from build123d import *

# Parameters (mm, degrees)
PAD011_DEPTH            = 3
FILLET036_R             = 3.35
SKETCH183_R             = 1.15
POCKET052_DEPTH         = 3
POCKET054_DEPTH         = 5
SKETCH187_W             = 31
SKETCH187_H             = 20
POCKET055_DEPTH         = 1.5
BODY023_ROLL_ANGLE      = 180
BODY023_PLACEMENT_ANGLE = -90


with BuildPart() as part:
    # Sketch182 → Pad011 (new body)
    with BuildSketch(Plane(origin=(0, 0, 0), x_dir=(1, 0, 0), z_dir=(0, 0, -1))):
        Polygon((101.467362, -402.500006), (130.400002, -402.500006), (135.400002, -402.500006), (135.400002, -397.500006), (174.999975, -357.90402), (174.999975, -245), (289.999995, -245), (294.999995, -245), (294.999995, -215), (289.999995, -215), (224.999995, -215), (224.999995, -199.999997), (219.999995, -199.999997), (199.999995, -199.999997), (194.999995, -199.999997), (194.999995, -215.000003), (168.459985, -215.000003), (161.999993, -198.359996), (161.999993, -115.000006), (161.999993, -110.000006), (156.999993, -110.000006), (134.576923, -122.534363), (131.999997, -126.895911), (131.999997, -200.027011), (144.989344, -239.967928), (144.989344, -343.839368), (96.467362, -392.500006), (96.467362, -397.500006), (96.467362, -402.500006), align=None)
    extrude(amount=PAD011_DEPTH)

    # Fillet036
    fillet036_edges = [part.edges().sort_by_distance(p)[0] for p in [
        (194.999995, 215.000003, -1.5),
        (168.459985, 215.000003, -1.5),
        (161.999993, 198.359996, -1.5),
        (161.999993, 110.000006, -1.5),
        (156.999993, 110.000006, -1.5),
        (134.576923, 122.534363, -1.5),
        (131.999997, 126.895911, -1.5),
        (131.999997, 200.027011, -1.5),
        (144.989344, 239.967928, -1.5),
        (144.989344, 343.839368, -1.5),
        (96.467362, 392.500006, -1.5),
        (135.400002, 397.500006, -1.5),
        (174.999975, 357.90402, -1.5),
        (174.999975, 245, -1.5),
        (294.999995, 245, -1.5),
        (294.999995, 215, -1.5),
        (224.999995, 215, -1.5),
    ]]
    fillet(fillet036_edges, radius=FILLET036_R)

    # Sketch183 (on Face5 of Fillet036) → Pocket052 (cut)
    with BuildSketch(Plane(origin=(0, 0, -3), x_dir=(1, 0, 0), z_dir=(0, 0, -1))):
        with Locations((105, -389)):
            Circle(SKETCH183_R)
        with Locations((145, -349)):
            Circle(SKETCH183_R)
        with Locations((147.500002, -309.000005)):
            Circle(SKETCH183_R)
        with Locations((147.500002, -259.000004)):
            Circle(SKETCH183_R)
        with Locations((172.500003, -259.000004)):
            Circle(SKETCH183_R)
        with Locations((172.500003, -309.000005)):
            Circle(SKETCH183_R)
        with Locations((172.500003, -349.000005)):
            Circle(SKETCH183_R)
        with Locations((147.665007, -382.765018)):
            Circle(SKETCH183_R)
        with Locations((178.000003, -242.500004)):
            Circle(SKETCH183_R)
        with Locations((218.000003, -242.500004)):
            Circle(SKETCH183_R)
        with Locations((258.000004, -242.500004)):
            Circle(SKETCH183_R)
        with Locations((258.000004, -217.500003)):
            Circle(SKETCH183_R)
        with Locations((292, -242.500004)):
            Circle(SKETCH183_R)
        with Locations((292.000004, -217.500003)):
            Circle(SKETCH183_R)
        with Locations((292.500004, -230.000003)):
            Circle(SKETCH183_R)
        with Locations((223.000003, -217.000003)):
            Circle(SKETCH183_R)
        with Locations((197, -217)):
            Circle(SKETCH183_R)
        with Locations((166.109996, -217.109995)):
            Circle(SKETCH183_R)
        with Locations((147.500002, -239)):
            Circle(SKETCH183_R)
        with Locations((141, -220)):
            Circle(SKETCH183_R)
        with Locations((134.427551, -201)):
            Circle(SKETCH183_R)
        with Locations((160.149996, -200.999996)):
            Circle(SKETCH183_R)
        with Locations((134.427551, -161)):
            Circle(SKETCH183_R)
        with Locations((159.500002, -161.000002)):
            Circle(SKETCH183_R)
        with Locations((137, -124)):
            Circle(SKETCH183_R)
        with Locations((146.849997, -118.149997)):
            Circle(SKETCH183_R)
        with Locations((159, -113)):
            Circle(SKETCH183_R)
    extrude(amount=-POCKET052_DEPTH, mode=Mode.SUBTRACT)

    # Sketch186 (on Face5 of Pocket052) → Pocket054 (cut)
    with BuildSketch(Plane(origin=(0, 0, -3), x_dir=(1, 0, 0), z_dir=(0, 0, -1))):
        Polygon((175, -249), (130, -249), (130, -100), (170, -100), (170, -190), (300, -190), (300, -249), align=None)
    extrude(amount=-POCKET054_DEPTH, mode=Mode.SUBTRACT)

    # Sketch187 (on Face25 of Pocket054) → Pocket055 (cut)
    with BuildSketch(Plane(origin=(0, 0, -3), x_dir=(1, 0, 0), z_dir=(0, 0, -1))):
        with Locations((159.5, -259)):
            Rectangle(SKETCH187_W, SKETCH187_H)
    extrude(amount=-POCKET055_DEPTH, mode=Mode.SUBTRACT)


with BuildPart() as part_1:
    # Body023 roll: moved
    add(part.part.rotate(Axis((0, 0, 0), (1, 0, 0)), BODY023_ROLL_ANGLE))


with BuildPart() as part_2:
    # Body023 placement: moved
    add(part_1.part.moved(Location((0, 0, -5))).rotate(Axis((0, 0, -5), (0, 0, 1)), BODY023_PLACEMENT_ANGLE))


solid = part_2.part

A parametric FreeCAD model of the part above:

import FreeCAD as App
import Part
import Sketcher

V = App.Vector
Q = App.Units.Quantity


def edges_at(feature, points):
    """Names of the edges that pass closest to the given points."""
    edges = feature.Shape.Edges
    near = lambda p: min(range(len(edges)), key=lambda i: edges[i].distToShape(Part.Vertex(*p))[0])
    return sorted({f"Edge{near(p) + 1}" for p in points})

doc = App.newDocument("Part")
params = doc.addObject("Spreadsheet::Sheet", "Params")
for row, (alias, value) in enumerate([
    ("sketch1_width", "70 mm"),
    ("sketch1_width2", "30 mm"),
    ("sketch1_width3", "5 mm"),
    ("sketch1_height", "10 mm"),
    ("sketch1_length", "56 mm"),
    ("pad1_length", "3 mm"),
    ("fillet_radius", "3.35 mm"),
    ("sketch2_diameter", "2.3 mm"),
    ("pocket1_length", "3 mm"),
    ("sketch3_width", "170 mm"),
    ("sketch3_width2", "130 mm"),
    ("sketch3_height", "59 mm"),
    ("sketch3_height2", "90 mm"),
    ("pocket2_length", "5 mm"),
    ("sketch4_width", "31 mm"),
    ("sketch4_height", "20 mm"),
    ("pocket3_length", "1.5 mm"),
], start=1):
    params.set(f"A{row}", alias)
    params.set(f"B{row}", "=" + value)
    params.setAlias(f"B{row}", alias)

body = doc.addObject("PartDesign::Body", "Body")

# Sketch on XY plane
sketch1 = doc.addObject("Sketcher::SketchObject", "Sketch")
body.addObject(sketch1)
sketch1.AttachmentSupport = (doc.XY_Plane, [""])
sketch1.MapMode = "FlatFace"
sketch1.addGeometry(Part.LineSegment(V(135, 403, 0), V(135, 398, 0)), False)
sketch1.addGeometry(Part.LineSegment(V(135, 398, 0), V(175, 358, 0)), False)
sketch1.addGeometry(Part.LineSegment(V(175, 358, 0), V(175, 245, 0)), False)
sketch1.addGeometry(Part.LineSegment(V(175, 245, 0), V(295, 245, 0)), False)
sketch1.addGeometry(Part.LineSegment(V(295, 245, 0), V(295, 215, 0)), False)
sketch1.addGeometry(Part.LineSegment(V(295, 215, 0), V(225, 215, 0)), False)
sketch1.addGeometry(Part.LineSegment(V(225, 215, 0), V(225, 200, 0)), False)
sketch1.addGeometry(Part.LineSegment(V(225, 200, 0), V(195, 200, 0)), False)
sketch1.addGeometry(Part.LineSegment(V(195, 200, 0), V(195, 215, 0)), False)
sketch1.addGeometry(Part.LineSegment(V(195, 215, 0), V(168, 215, 0)), False)
sketch1.addGeometry(Part.LineSegment(V(168, 215, 0), V(162, 198, 0)), False)
sketch1.addGeometry(Part.LineSegment(V(162, 198, 0), V(162, 110, 0)), False)
sketch1.addGeometry(Part.LineSegment(V(162, 110, 0), V(157, 110, 0)), False)
sketch1.addGeometry(Part.LineSegment(V(157, 110, 0), V(135, 123, 0)), False)
sketch1.addGeometry(Part.LineSegment(V(135, 123, 0), V(132, 127, 0)), False)
sketch1.addGeometry(Part.LineSegment(V(132, 127, 0), V(132, 200, 0)), False)
sketch1.addGeometry(Part.LineSegment(V(132, 200, 0), V(145, 240, 0)), False)
sketch1.addGeometry(Part.LineSegment(V(145, 240, 0), V(145, 344, 0)), False)
sketch1.addGeometry(Part.LineSegment(V(145, 344, 0), V(96, 393, 0)), False)
sketch1.addGeometry(Part.LineSegment(V(96, 393, 0), V(96, 403, 0)), False)
sketch1.addGeometry(Part.LineSegment(V(96, 403, 0), V(135, 403, 0)), False)
sketch1.addConstraint(Sketcher.Constraint("Coincident", 0, 2, 1, 1))
sketch1.addConstraint(Sketcher.Constraint("Coincident", 1, 2, 2, 1))
sketch1.addConstraint(Sketcher.Constraint("Coincident", 2, 2, 3, 1))
sketch1.addConstraint(Sketcher.Constraint("Coincident", 3, 2, 4, 1))
sketch1.addConstraint(Sketcher.Constraint("Coincident", 4, 2, 5, 1))
sketch1.addConstraint(Sketcher.Constraint("Coincident", 5, 2, 6, 1))
sketch1.addConstraint(Sketcher.Constraint("Coincident", 6, 2, 7, 1))
sketch1.addConstraint(Sketcher.Constraint("Coincident", 7, 2, 8, 1))
sketch1.addConstraint(Sketcher.Constraint("Coincident", 8, 2, 9, 1))
sketch1.addConstraint(Sketcher.Constraint("Coincident", 9, 2, 10, 1))
sketch1.addConstraint(Sketcher.Constraint("Coincident", 10, 2, 11, 1))
sketch1.addConstraint(Sketcher.Constraint("Coincident", 11, 2, 12, 1))
sketch1.addConstraint(Sketcher.Constraint("Coincident", 12, 2, 13, 1))
sketch1.addConstraint(Sketcher.Constraint("Coincident", 13, 2, 14, 1))
sketch1.addConstraint(Sketcher.Constraint("Coincident", 14, 2, 15, 1))
sketch1.addConstraint(Sketcher.Constraint("Coincident", 15, 2, 16, 1))
sketch1.addConstraint(Sketcher.Constraint("Coincident", 16, 2, 17, 1))
sketch1.addConstraint(Sketcher.Constraint("Coincident", 17, 2, 18, 1))
sketch1.addConstraint(Sketcher.Constraint("Coincident", 18, 2, 19, 1))
sketch1.addConstraint(Sketcher.Constraint("Coincident", 19, 2, 20, 1))
sketch1.addConstraint(Sketcher.Constraint("Coincident", 20, 2, 0, 1))
sketch1.addConstraint(Sketcher.Constraint("Vertical", 0))
sketch1.addConstraint(Sketcher.Constraint("Vertical", 2))
sketch1.addConstraint(Sketcher.Constraint("Horizontal", 3))
sketch1.addConstraint(Sketcher.Constraint("Vertical", 4))
sketch1.addConstraint(Sketcher.Constraint("Horizontal", 5))
sketch1.addConstraint(Sketcher.Constraint("Vertical", 6))
sketch1.addConstraint(Sketcher.Constraint("Horizontal", 7))
sketch1.addConstraint(Sketcher.Constraint("Vertical", 8))
sketch1.addConstraint(Sketcher.Constraint("Horizontal", 9))
sketch1.addConstraint(Sketcher.Constraint("Vertical", 11))
sketch1.addConstraint(Sketcher.Constraint("Horizontal", 12))
sketch1.addConstraint(Sketcher.Constraint("Vertical", 15))
sketch1.addConstraint(Sketcher.Constraint("Vertical", 17))
sketch1.addConstraint(Sketcher.Constraint("Vertical", 19))
sketch1.addConstraint(Sketcher.Constraint("Horizontal", 20))
sketch1.addConstraint(Sketcher.Constraint("Equal", 12, 0))
sketch1.addConstraint(Sketcher.Constraint("Equal", 7, 4))
sketch1.addConstraint(Sketcher.Constraint("DistanceX", 5, 2, 5, 1, Q("70 mm")))
sketch1.addConstraint(Sketcher.Constraint("DistanceX", 7, 2, 7, 1, Q("30 mm")))
sketch1.addConstraint(Sketcher.Constraint("DistanceX", 12, 2, 12, 1, Q("5 mm")))
sketch1.addConstraint(Sketcher.Constraint("DistanceY", 19, 1, 19, 2, Q("10 mm")))
sketch1.addConstraint(Sketcher.Constraint("Distance", 1, Q("56 mm")))
sketch1.addConstraint(Sketcher.Constraint("Distance", 16, Q("42 mm")))
sketch1.addConstraint(Sketcher.Constraint("DistanceY", -1, 1, 2, 2, Q("245 mm")))
sketch1.addConstraint(Sketcher.Constraint("DistanceX", 15, 2, 7, 2, Q("62.999998 mm")))
sketch1.addConstraint(Sketcher.Constraint("DistanceX", -1, 1, 0, 2, Q("135.400002 mm")))
sketch1.addConstraint(Sketcher.Constraint("DistanceY", 10, 2, 7, 2, Q("1.640001 mm")))
sketch1.addConstraint(Sketcher.Constraint("DistanceY", 15, 1, 15, 2, Q("73.1311 mm")))
sketch1.addConstraint(Sketcher.Constraint("Distance", 13, Q("25.6886 mm")))
sketch1.addConstraint(Sketcher.Constraint("DistanceX", 3, 1, 3, 2, Q("120.00002 mm")))
sketch1.addConstraint(Sketcher.Constraint("DistanceX", 9, 2, 9, 1, Q("26.54001 mm")))
sketch1.addConstraint(Sketcher.Constraint("DistanceX", 20, 1, 20, 2, Q("38.93264 mm")))
sketch1.addConstraint(Sketcher.Constraint("DistanceY", 2, 2, 2, 1, Q("112.90402 mm")))
sketch1.addConstraint(Sketcher.Constraint("DistanceY", 11, 2, 11, 1, Q("88.35999 mm")))
sketch1.addConstraint(Sketcher.Constraint("DistanceY", 17, 1, 17, 2, Q("103.87144 mm")))
sketch1.addConstraint(Sketcher.Constraint("Distance", 14, Q("5.06593 mm")))
sketch1.addConstraint(Sketcher.Constraint("Distance", 18, Q("68.71856 mm")))
sketch1.addConstraint(Sketcher.Constraint("DistanceY", 6, 2, 6, 1, Q("15.000003 mm")))
sketch1.addConstraint(Sketcher.Constraint("DistanceY", 8, 1, 8, 2, Q("15.000006 mm")))
sketch1.addConstraint(Sketcher.Constraint("DistanceY", -1, 1, 14, 2, Q("126.895911 mm")))
sketch1.addConstraint(Sketcher.Constraint("DistanceX", 10, 2, 9, 2, Q("6.459992 mm")))
sketch1.addConstraint(Sketcher.Constraint("DistanceX", 0, 2, 17, 2, Q("9.589342 mm")))
sketch1.setExpression("Constraints[38]", "Params.sketch1_width")
sketch1.setExpression("Constraints[39]", "Params.sketch1_width2")
sketch1.setExpression("Constraints[40]", "Params.sketch1_width3")
sketch1.setExpression("Constraints[41]", "Params.sketch1_height")
sketch1.setExpression("Constraints[42]", "Params.sketch1_length")
pad1 = doc.addObject("PartDesign::Pad", "Pad")
body.addObject(pad1)
pad1.Profile = sketch1
pad1.setExpression("Length", "Params.pad1_length")
pad1.Reversed = True
doc.recompute()

fillet = doc.addObject("PartDesign::Fillet", "Fillet")
body.addObject(fillet)
fillet.Base = (pad1, edges_at(pad1, [
    (195, 215, -1.5),
    (168.46, 215, -1.5),
    (162, 198.36, -1.5),
    (162, 110, -1.5),
    (157, 110, -1.5),
    (134.577, 122.534, -1.5),
    (132, 126.896, -1.5),
    (132, 200.027, -1.5),
    (144.989, 239.968, -1.5),
    (144.989, 343.839, -1.5),
    (96.467, 392.5, -1.5),
    (135.4, 397.5, -1.5),
    (175, 357.904, -1.5),
    (175, 245, -1.5),
    (295, 245, -1.5),
    (295, 215, -1.5),
    (225, 215, -1.5),
]))
fillet.setExpression("Radius", "Params.fillet_radius")

# Sketch on XY plane
sketch2 = doc.addObject("Sketcher::SketchObject", "Sketch001")
body.addObject(sketch2)
sketch2.AttachmentSupport = (doc.XY_Plane, [""])
sketch2.MapMode = "FlatFace"
sketch2.AttachmentOffset = App.Placement(V(0, 0, -3), App.Rotation())
sketch2.addGeometry(Part.Circle(V(105, 389, 0), V(0, 0, 1), 1.1), False)
sketch2.addGeometry(Part.Circle(V(145, 349, 0), V(0, 0, 1), 1.1), False)
sketch2.addGeometry(Part.Circle(V(147.5, 309, 0), V(0, 0, 1), 1.1), False)
sketch2.addGeometry(Part.Circle(V(147.5, 259, 0), V(0, 0, 1), 1.1), False)
sketch2.addGeometry(Part.Circle(V(172.5, 259, 0), V(0, 0, 1), 1.1), False)
sketch2.addGeometry(Part.Circle(V(172.5, 309, 0), V(0, 0, 1), 1.1), False)
sketch2.addGeometry(Part.Circle(V(172.5, 349, 0), V(0, 0, 1), 1.1), False)
sketch2.addGeometry(Part.Circle(V(147.7, 382.8, 0), V(0, 0, 1), 1.1), False)
sketch2.addGeometry(Part.Circle(V(178, 242.5, 0), V(0, 0, 1), 1.1), False)
sketch2.addGeometry(Part.Circle(V(218, 242.5, 0), V(0, 0, 1), 1.1), False)
sketch2.addGeometry(Part.Circle(V(258, 242.5, 0), V(0, 0, 1), 1.1), False)
sketch2.addGeometry(Part.Circle(V(258, 217.5, 0), V(0, 0, 1), 1.1), False)
sketch2.addGeometry(Part.Circle(V(292, 242.5, 0), V(0, 0, 1), 1.1), False)
sketch2.addGeometry(Part.Circle(V(292, 217.5, 0), V(0, 0, 1), 1.1), False)
sketch2.addGeometry(Part.Circle(V(292.5, 230, 0), V(0, 0, 1), 1.1), False)
sketch2.addGeometry(Part.Circle(V(223, 217, 0), V(0, 0, 1), 1.1), False)
sketch2.addGeometry(Part.Circle(V(197, 217, 0), V(0, 0, 1), 1.1), False)
sketch2.addGeometry(Part.Circle(V(166.1, 217.1, 0), V(0, 0, 1), 1.1), False)
sketch2.addGeometry(Part.Circle(V(147.5, 239, 0), V(0, 0, 1), 1.1), False)
sketch2.addGeometry(Part.Circle(V(141, 220, 0), V(0, 0, 1), 1.1), False)
sketch2.addGeometry(Part.Circle(V(134.4, 201, 0), V(0, 0, 1), 1.1), False)
sketch2.addGeometry(Part.Circle(V(160.1, 201, 0), V(0, 0, 1), 1.1), False)
sketch2.addGeometry(Part.Circle(V(134.4, 161, 0), V(0, 0, 1), 1.1), False)
sketch2.addGeometry(Part.Circle(V(159.5, 161, 0), V(0, 0, 1), 1.1), False)
sketch2.addGeometry(Part.Circle(V(137, 124, 0), V(0, 0, 1), 1.1), False)
sketch2.addGeometry(Part.Circle(V(146.8, 118.1, 0), V(0, 0, 1), 1.1), False)
sketch2.addGeometry(Part.Circle(V(159, 113, 0), V(0, 0, 1), 1.1), False)
sketch2.addConstraint(Sketcher.Constraint("Equal", 0, 1))
sketch2.addConstraint(Sketcher.Constraint("Equal", 1, 2))
sketch2.addConstraint(Sketcher.Constraint("Equal", 2, 3))
sketch2.addConstraint(Sketcher.Constraint("Equal", 3, 4))
sketch2.addConstraint(Sketcher.Constraint("Equal", 4, 5))
sketch2.addConstraint(Sketcher.Constraint("Equal", 5, 6))
sketch2.addConstraint(Sketcher.Constraint("Equal", 6, 7))
sketch2.addConstraint(Sketcher.Constraint("Equal", 7, 8))
sketch2.addConstraint(Sketcher.Constraint("Equal", 8, 9))
sketch2.addConstraint(Sketcher.Constraint("Equal", 9, 10))
sketch2.addConstraint(Sketcher.Constraint("Equal", 10, 11))
sketch2.addConstraint(Sketcher.Constraint("Equal", 11, 12))
sketch2.addConstraint(Sketcher.Constraint("Equal", 12, 13))
sketch2.addConstraint(Sketcher.Constraint("Equal", 13, 14))
sketch2.addConstraint(Sketcher.Constraint("Equal", 14, 15))
sketch2.addConstraint(Sketcher.Constraint("Equal", 15, 16))
sketch2.addConstraint(Sketcher.Constraint("Equal", 16, 17))
sketch2.addConstraint(Sketcher.Constraint("Equal", 17, 18))
sketch2.addConstraint(Sketcher.Constraint("Equal", 18, 19))
sketch2.addConstraint(Sketcher.Constraint("Equal", 19, 20))
sketch2.addConstraint(Sketcher.Constraint("Equal", 20, 21))
sketch2.addConstraint(Sketcher.Constraint("Equal", 21, 22))
sketch2.addConstraint(Sketcher.Constraint("Equal", 22, 23))
sketch2.addConstraint(Sketcher.Constraint("Equal", 23, 24))
sketch2.addConstraint(Sketcher.Constraint("Equal", 24, 25))
sketch2.addConstraint(Sketcher.Constraint("Equal", 25, 26))
sketch2.addConstraint(Sketcher.Constraint("Horizontal", 3, 3, 4, 3))
sketch2.addConstraint(Sketcher.Constraint("Horizontal", 2, 3, 5, 3))
sketch2.addConstraint(Sketcher.Constraint("Horizontal", 8, 3, 9, 3))
sketch2.addConstraint(Sketcher.Constraint("Horizontal", 9, 3, 10, 3))
sketch2.addConstraint(Sketcher.Constraint("Horizontal", 10, 3, 12, 3))
sketch2.addConstraint(Sketcher.Constraint("Horizontal", 11, 3, 13, 3))
sketch2.addConstraint(Sketcher.Constraint("Horizontal", 22, 3, 23, 3))
sketch2.addConstraint(Sketcher.Constraint("Vertical", 2, 3, 3, 3))
sketch2.addConstraint(Sketcher.Constraint("Vertical", 4, 3, 5, 3))
sketch2.addConstraint(Sketcher.Constraint("Vertical", 5, 3, 6, 3))
sketch2.addConstraint(Sketcher.Constraint("Vertical", 10, 3, 11, 3))
sketch2.addConstraint(Sketcher.Constraint("Vertical", 3, 3, 18, 3))
sketch2.addConstraint(Sketcher.Constraint("Vertical", 20, 3, 22, 3))
sketch2.addConstraint(Sketcher.Constraint("Diameter", 0, Q("2.3 mm")))
sketch2.addConstraint(Sketcher.Constraint("DistanceX", -1, 1, 0, 3, Q("105 mm")))
sketch2.addConstraint(Sketcher.Constraint("DistanceY", -1, 1, 0, 3, Q("389 mm")))
sketch2.addConstraint(Sketcher.Constraint("DistanceX", -1, 1, 1, 3, Q("145 mm")))
sketch2.addConstraint(Sketcher.Constraint("DistanceY", -1, 1, 1, 3, Q("349 mm")))
sketch2.addConstraint(Sketcher.Constraint("DistanceX", -1, 1, 12, 3, Q("292 mm")))
sketch2.addConstraint(Sketcher.Constraint("DistanceX", -1, 1, 16, 3, Q("197 mm")))
sketch2.addConstraint(Sketcher.Constraint("DistanceY", -1, 1, 16, 3, Q("217 mm")))
sketch2.addConstraint(Sketcher.Constraint("DistanceY", -1, 1, 18, 3, Q("239 mm")))
sketch2.addConstraint(Sketcher.Constraint("DistanceX", -1, 1, 19, 3, Q("141 mm")))
sketch2.addConstraint(Sketcher.Constraint("DistanceY", -1, 1, 19, 3, Q("220 mm")))
sketch2.addConstraint(Sketcher.Constraint("DistanceY", -1, 1, 20, 3, Q("201 mm")))
sketch2.addConstraint(Sketcher.Constraint("DistanceY", -1, 1, 22, 3, Q("161 mm")))
sketch2.addConstraint(Sketcher.Constraint("DistanceX", -1, 1, 24, 3, Q("137 mm")))
sketch2.addConstraint(Sketcher.Constraint("DistanceY", -1, 1, 24, 3, Q("124 mm")))
sketch2.addConstraint(Sketcher.Constraint("DistanceX", -1, 1, 26, 3, Q("159 mm")))
sketch2.addConstraint(Sketcher.Constraint("DistanceY", -1, 1, 26, 3, Q("113 mm")))
sketch2.addConstraint(Sketcher.Constraint("DistanceY", 3, 3, 2, 3, Q("50.000001 mm")))
sketch2.addConstraint(Sketcher.Constraint("DistanceX", 3, 3, 4, 3, Q("25.000001 mm")))
sketch2.addConstraint(Sketcher.Constraint("DistanceY", 5, 3, 6, 3, Q("40 mm")))
sketch2.addConstraint(Sketcher.Constraint("DistanceX", 8, 3, 9, 3, Q("40 mm")))
sketch2.addConstraint(Sketcher.Constraint("DistanceX", 9, 3, 10, 3, Q("40.000001 mm")))
sketch2.addConstraint(Sketcher.Constraint("DistanceY", 11, 3, 10, 3, Q("25.000001 mm")))
sketch2.addConstraint(Sketcher.Constraint("DistanceX", 11, 3, 13, 3, Q("34 mm")))
sketch2.addConstraint(Sketcher.Constraint("DistanceX", 9, 3, 15, 3, Q("5 mm")))
sketch2.addConstraint(Sketcher.Constraint("DistanceY", 15, 3, 4, 3, Q("42.000001 mm")))
sketch2.addConstraint(Sketcher.Constraint("DistanceX", -1, 1, 2, 3, Q("147.500002 mm")))
sketch2.addConstraint(Sketcher.Constraint("DistanceX", -1, 1, 23, 3, Q("159.500002 mm")))
sketch2.addConstraint(Sketcher.Constraint("DistanceX", 4, 3, 8, 3, Q("5.5 mm")))
sketch2.addConstraint(Sketcher.Constraint("DistanceY", 8, 3, 4, 3, Q("16.5 mm")))
sketch2.addConstraint(Sketcher.Constraint("DistanceX", 13, 3, 14, 3, Q("0.5 mm")))
sketch2.addConstraint(Sketcher.Constraint("DistanceY", 13, 3, 14, 3, Q("12.5 mm")))
sketch2.addConstraint(Sketcher.Constraint("DistanceX", 25, 3, 21, 3, Q("13.299999 mm")))
sketch2.addConstraint(Sketcher.Constraint("DistanceX", 21, 3, 17, 3, Q("5.96 mm")))
sketch2.addConstraint(Sketcher.Constraint("DistanceY", 21, 3, 17, 3, Q("16.109999 mm")))
sketch2.addConstraint(Sketcher.Constraint("DistanceY", 25, 3, 21, 3, Q("82.849999 mm")))
sketch2.addConstraint(Sketcher.Constraint("DistanceY", -1, 1, 7, 3, Q("382.765018 mm")))
sketch2.addConstraint(Sketcher.Constraint("DistanceX", -1, 1, 20, 3, Q("134.427551 mm")))
sketch2.addConstraint(Sketcher.Constraint("DistanceY", 17, 3, 8, 3, Q("25.390009 mm")))
sketch2.addConstraint(Sketcher.Constraint("DistanceY", -1, 1, 2, 3, Q("309.000005 mm")))
sketch2.addConstraint(Sketcher.Constraint("DistanceX", -1, 1, 7, 3, Q("147.665007 mm")))
sketch2.addConstraint(Sketcher.Constraint("DistanceX", -1, 1, 17, 3, Q("166.109996 mm")))
sketch2.setExpression("Constraints[39]", "Params.sketch2_diameter")
pocket1 = doc.addObject("PartDesign::Pocket", "Pocket")
body.addObject(pocket1)
pocket1.Profile = sketch2
pocket1.setExpression("Length", "Params.pocket1_length")
pocket1.Reversed = True

# Sketch on XY plane
sketch3 = doc.addObject("Sketcher::SketchObject", "Sketch002")
body.addObject(sketch3)
sketch3.AttachmentSupport = (doc.XY_Plane, [""])
sketch3.MapMode = "FlatFace"
sketch3.AttachmentOffset = App.Placement(V(0, 0, -3), App.Rotation())
sketch3.addGeometry(Part.LineSegment(V(130, 249, 0), V(300, 249, 0)), False)
sketch3.addGeometry(Part.LineSegment(V(300, 249, 0), V(300, 190, 0)), False)
sketch3.addGeometry(Part.LineSegment(V(300, 190, 0), V(170, 190, 0)), False)
sketch3.addGeometry(Part.LineSegment(V(170, 190, 0), V(170, 100, 0)), False)
sketch3.addGeometry(Part.LineSegment(V(170, 100, 0), V(130, 100, 0)), False)
sketch3.addGeometry(Part.LineSegment(V(130, 100, 0), V(130, 249, 0)), False)
sketch3.addConstraint(Sketcher.Constraint("Coincident", 0, 2, 1, 1))
sketch3.addConstraint(Sketcher.Constraint("Coincident", 1, 2, 2, 1))
sketch3.addConstraint(Sketcher.Constraint("Coincident", 2, 2, 3, 1))
sketch3.addConstraint(Sketcher.Constraint("Coincident", 3, 2, 4, 1))
sketch3.addConstraint(Sketcher.Constraint("Coincident", 4, 2, 5, 1))
sketch3.addConstraint(Sketcher.Constraint("Coincident", 5, 2, 0, 1))
sketch3.addConstraint(Sketcher.Constraint("Horizontal", 0))
sketch3.addConstraint(Sketcher.Constraint("Vertical", 1))
sketch3.addConstraint(Sketcher.Constraint("Horizontal", 2))
sketch3.addConstraint(Sketcher.Constraint("Vertical", 3))
sketch3.addConstraint(Sketcher.Constraint("Horizontal", 4))
sketch3.addConstraint(Sketcher.Constraint("Vertical", 5))
sketch3.addConstraint(Sketcher.Constraint("DistanceX", 0, 1, 0, 2, Q("170 mm")))
sketch3.addConstraint(Sketcher.Constraint("DistanceX", 2, 2, 2, 1, Q("130 mm")))
sketch3.addConstraint(Sketcher.Constraint("DistanceY", 1, 2, 1, 1, Q("59 mm")))
sketch3.addConstraint(Sketcher.Constraint("DistanceY", 3, 2, 3, 1, Q("90 mm")))
sketch3.addConstraint(Sketcher.Constraint("DistanceX", -1, 1, 0, 2, Q("300 mm")))
sketch3.addConstraint(Sketcher.Constraint("DistanceY", -1, 1, 0, 2, Q("249 mm")))
sketch3.setExpression("Constraints[12]", "Params.sketch3_width")
sketch3.setExpression("Constraints[13]", "Params.sketch3_width2")
sketch3.setExpression("Constraints[14]", "Params.sketch3_height")
sketch3.setExpression("Constraints[15]", "Params.sketch3_height2")
pocket2 = doc.addObject("PartDesign::Pocket", "Pocket001")
body.addObject(pocket2)
pocket2.Profile = sketch3
pocket2.setExpression("Length", "Params.pocket2_length")
pocket2.Reversed = True

# Sketch on XY plane
sketch4 = doc.addObject("Sketcher::SketchObject", "Sketch003")
body.addObject(sketch4)
sketch4.AttachmentSupport = (doc.XY_Plane, [""])
sketch4.MapMode = "FlatFace"
sketch4.AttachmentOffset = App.Placement(V(0, 0, -3), App.Rotation())
sketch4.addGeometry(Part.LineSegment(V(144, 249, 0), V(144, 269, 0)), False)
sketch4.addGeometry(Part.LineSegment(V(144, 269, 0), V(175, 269, 0)), False)
sketch4.addGeometry(Part.LineSegment(V(175, 269, 0), V(175, 249, 0)), False)
sketch4.addGeometry(Part.LineSegment(V(175, 249, 0), V(144, 249, 0)), False)
sketch4.addConstraint(Sketcher.Constraint("Coincident", 0, 2, 1, 1))
sketch4.addConstraint(Sketcher.Constraint("Coincident", 1, 2, 2, 1))
sketch4.addConstraint(Sketcher.Constraint("Coincident", 2, 2, 3, 1))
sketch4.addConstraint(Sketcher.Constraint("Coincident", 3, 2, 0, 1))
sketch4.addConstraint(Sketcher.Constraint("Vertical", 0))
sketch4.addConstraint(Sketcher.Constraint("Horizontal", 1))
sketch4.addConstraint(Sketcher.Constraint("Vertical", 2))
sketch4.addConstraint(Sketcher.Constraint("Horizontal", 3))
sketch4.addConstraint(Sketcher.Constraint("DistanceX", 1, 1, 1, 2, Q("31 mm")))
sketch4.addConstraint(Sketcher.Constraint("DistanceY", 0, 1, 0, 2, Q("20 mm")))
sketch4.addConstraint(Sketcher.Constraint("DistanceX", -1, 1, 0, 2, Q("144 mm")))
sketch4.addConstraint(Sketcher.Constraint("DistanceY", -1, 1, 0, 2, Q("269 mm")))
sketch4.setExpression("Constraints[8]", "Params.sketch4_width")
sketch4.setExpression("Constraints[9]", "Params.sketch4_height")
pocket3 = doc.addObject("PartDesign::Pocket", "Pocket002")
body.addObject(pocket3)
pocket3.Profile = sketch4
pocket3.setExpression("Length", "Params.pocket3_length")
pocket3.Reversed = True
body2 = doc.addObject("PartDesign::Body", "Body001")
doc.recompute()

body.Placement = App.Placement(V(0, 0, 0), App.Rotation(V(1, 0, 0), 180))
boolean = doc.addObject("PartDesign::Boolean", "Boolean")
body2.addObject(boolean)
boolean.Type = "Fuse"
boolean.addObjects([body])
body3 = doc.addObject("PartDesign::Body", "Body002")
doc.recompute()

body2.Placement = App.Placement(V(0, 0, -5), App.Rotation(V(0, 0, 1), 270))
boolean2 = doc.addObject("PartDesign::Boolean", "Boolean001")
body3.addObject(boolean2)
boolean2.Type = "Fuse"
boolean2.addObjects([body2])

doc.recompute()
